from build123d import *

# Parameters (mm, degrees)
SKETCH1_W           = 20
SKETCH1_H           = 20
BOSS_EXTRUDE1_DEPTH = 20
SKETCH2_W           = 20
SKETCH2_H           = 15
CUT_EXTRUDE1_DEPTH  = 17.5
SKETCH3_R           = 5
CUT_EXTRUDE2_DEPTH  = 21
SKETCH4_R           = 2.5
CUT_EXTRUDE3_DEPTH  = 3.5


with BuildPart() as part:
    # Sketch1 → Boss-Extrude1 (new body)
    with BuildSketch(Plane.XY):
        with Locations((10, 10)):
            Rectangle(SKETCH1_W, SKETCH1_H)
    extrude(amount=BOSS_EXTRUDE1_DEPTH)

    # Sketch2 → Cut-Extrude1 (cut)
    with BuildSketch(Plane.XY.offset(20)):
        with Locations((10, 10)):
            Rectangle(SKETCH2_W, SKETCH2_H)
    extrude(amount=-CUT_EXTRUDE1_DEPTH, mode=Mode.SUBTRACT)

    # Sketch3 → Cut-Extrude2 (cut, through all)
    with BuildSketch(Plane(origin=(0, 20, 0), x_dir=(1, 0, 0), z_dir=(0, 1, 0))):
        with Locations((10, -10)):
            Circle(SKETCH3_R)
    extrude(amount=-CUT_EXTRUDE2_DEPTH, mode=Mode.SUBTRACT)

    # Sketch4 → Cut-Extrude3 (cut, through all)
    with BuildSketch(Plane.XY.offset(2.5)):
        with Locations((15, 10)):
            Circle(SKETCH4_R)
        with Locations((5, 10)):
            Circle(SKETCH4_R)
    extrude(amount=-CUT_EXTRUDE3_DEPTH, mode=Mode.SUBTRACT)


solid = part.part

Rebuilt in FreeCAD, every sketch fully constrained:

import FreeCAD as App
import Part
import Sketcher
Q = App.Units.Quantity


def add_polygon(sketch, points):
    """Adds a closed chain of lines whose ends are joined by coincident constraints."""
    first, n = sketch.GeometryCount, len(points)
    for a, b in zip(points, points[1:] + points[:1]):
        sketch.addGeometry(Part.LineSegment(App.Vector(*a, 0), App.Vector(*b, 0)), False)
    for i in range(n):
        sketch.addConstraint(Sketcher.Constraint("Coincident", first + i, 2, first + (i + 1) % n, 1))

doc = App.newDocument("Part")
body = doc.addObject("PartDesign::Body", "Body")

# Sketch on XY plane
sketch1 = body.newObject("Sketcher::SketchObject", "Sketch")
sketch1.AttachmentSupport = (doc.getObject("XY_Plane"), [""])
sketch1.MapMode = "FlatFace"
add_polygon(sketch1, [(0, 20), (0, 0), (20, 0), (20, 20)])  # lines 0-3
sketch1.addConstraint(Sketcher.Constraint("Vertical", 0))
sketch1.addConstraint(Sketcher.Constraint("Horizontal", 1))
sketch1.addConstraint(Sketcher.Constraint("Vertical", 2))
sketch1.addConstraint(Sketcher.Constraint("Horizontal", 3))
sketch1.addConstraint(Sketcher.Constraint("Coincident", 0, 2, -1, 1))
sketch1.addConstraint(Sketcher.Constraint("Equal", 3, 0))
sketch1.addConstraint(Sketcher.Constraint("DistanceX", 1, 1, 1, 2, Q("20 mm")))
pad1 = body.newObject("PartDesign::Pad", "Pad")
pad1.Profile = sketch1
pad1.Length = 20

# Sketch on XY plane
sketch2 = body.newObject("Sketcher::SketchObject", "Sketch001")
sketch2.AttachmentSupport = (doc.getObject("XY_Plane"), [""])
sketch2.MapMode = "FlatFace"
sketch2.AttachmentOffset = App.Placement(App.Vector(0, 0, 20), App.Rotation())
add_polygon(sketch2, [(0, 17.5), (0, 2.5), (20, 2.5), (20, 17.5)])  # lines 0-3
sketch2.addConstraint(Sketcher.Constraint("Vertical", 0))
sketch2.addConstraint(Sketcher.Constraint("Horizontal", 1))
sketch2.addConstraint(Sketcher.Constraint("Vertical", 2))
sketch2.addConstraint(Sketcher.Constraint("Horizontal", 3))
sketch2.addConstraint(Sketcher.Constraint("PointOnObject", 0, 2, -2))
sketch2.addConstraint(Sketcher.Constraint("DistanceX", 1, 1, 1, 2, Q("20 mm")))
sketch2.addConstraint(Sketcher.Constraint("DistanceY", 0, 2, 0, 1, Q("15 mm")))
sketch2.addConstraint(Sketcher.Constraint("DistanceY", -1, 1, 0, 2, Q("2.5 mm")))
pocket1 = body.newObject("PartDesign::Pocket", "Pocket")
pocket1.Profile = sketch2
pocket1.Length = 17.5

# Sketch on XZ plane
sketch3 = body.newObject("Sketcher::SketchObject", "Sketch002")
sketch3.AttachmentSupport = (doc.getObject("XZ_Plane"), [""])
sketch3.MapMode = "FlatFace"
sketch3.AttachmentOffset = App.Placement(App.Vector(0, 0, -20), App.Rotation())
sketch3.addGeometry(Part.Circle(App.Vector(10, 10, 0), App.Vector(0, 0, 1), 5), False)
sketch3.addConstraint(Sketcher.Constraint("Diameter", 0, Q("10 mm")))
sketch3.addConstraint(Sketcher.Constraint("DistanceX", -1, 1, 0, 3, Q("10 mm")))
sketch3.addConstraint(Sketcher.Constraint("DistanceY", -1, 1, 0, 3, Q("10 mm")))
pocket2 = body.newObject("PartDesign::Pocket", "Pocket001")
pocket2.Profile = sketch3
pocket2.Type = "ThroughAll"
pocket2.Reversed = True

# Sketch on XY plane
sketch4 = body.newObject("Sketcher::SketchObject", "Sketch003")
sketch4.AttachmentSupport = (doc.getObject("XY_Plane"), [""])
sketch4.MapMode = "FlatFace"
sketch4.AttachmentOffset = App.Placement(App.Vector(0, 0, 2.5), App.Rotation())
sketch4.addGeometry(Part.Circle(App.Vector(15, 10, 0), App.Vector(0, 0, 1), 2.5), False)
sketch4.addGeometry(Part.Circle(App.Vector(5, 10, 0), App.Vector(0, 0, 1), 2.5), False)
sketch4.addConstraint(Sketcher.Constraint("Equal", 0, 1))
sketch4.addConstraint(Sketcher.Constraint("Horizontal", 0, 3, 1, 3))
sketch4.addConstraint(Sketcher.Constraint("Diameter", 0, Q("5 mm")))
sketch4.addConstraint(Sketcher.Constraint("DistanceX", -1, 1, 0, 3, Q("15 mm")))
sketch4.addConstraint(Sketcher.Constraint("DistanceY", -1, 1, 0, 3, Q("10 mm")))
sketch4.addConstraint(Sketcher.Constraint("DistanceX", -1, 1, 1, 3, Q("5 mm")))
pocket3 = body.newObject("PartDesign::Pocket", "Pocket002")
pocket3.Profile = sketch4
pocket3.Type = "ThroughAll"

doc.recompute()
